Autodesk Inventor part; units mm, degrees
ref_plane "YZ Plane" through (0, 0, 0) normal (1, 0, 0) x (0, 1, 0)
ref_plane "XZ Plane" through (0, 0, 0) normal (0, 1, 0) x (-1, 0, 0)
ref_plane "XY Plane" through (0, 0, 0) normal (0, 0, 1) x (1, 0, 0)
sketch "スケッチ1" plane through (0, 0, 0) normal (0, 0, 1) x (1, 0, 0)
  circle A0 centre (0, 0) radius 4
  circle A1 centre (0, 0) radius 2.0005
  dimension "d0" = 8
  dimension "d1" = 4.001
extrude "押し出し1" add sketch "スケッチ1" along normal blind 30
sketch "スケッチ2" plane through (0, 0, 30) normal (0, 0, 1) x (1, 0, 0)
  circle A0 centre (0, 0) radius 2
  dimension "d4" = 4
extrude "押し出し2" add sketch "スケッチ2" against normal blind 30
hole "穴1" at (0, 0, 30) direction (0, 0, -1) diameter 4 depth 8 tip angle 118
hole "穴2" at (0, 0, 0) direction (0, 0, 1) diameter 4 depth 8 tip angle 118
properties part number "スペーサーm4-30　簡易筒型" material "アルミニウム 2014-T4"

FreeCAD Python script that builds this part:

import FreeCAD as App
import Part
import Sketcher
from FreeCAD import Vector

doc = App.newDocument("Part")
params = doc.addObject("Spreadsheet::Sheet", "Params")
for row, (alias, value) in enumerate([
    ("sketch1_diameter", "8 mm"),
    ("pad1_length", "30 mm"),
    ("sketch2_diameter", "4 mm"),
    ("pad2_length", "30 mm"),
    ("sketch3_diameter", "4 mm"),
    ("hole_diameter", "4 mm"),
    ("hole_depth", "8 mm"),
    ("sketch4_diameter", "4 mm"),
    ("hole2_diameter", "4 mm"),
    ("hole2_depth", "8 mm"),
], start=1):
    params.set(f"A{row}", alias)
    params.set(f"B{row}", "=" + value)
    params.setAlias(f"B{row}", alias)

body = doc.addObject("PartDesign::Body", "Body")
body.AllowCompound = True

# Sketch on XY plane
sketch1 = doc.addObject("Sketcher::SketchObject", "Sketch")
body.addObject(sketch1)
sketch1.AttachmentSupport = (doc.XY_Plane, [""])
sketch1.MapMode = "FlatFace"
sketch1.addGeometry([
    Part.Circle(Vector(0, 0, 0), Vector(0, 0, 1), 4),
    Part.Circle(Vector(0, 0, 0), Vector(0, 0, 1), 2.0005),
], False)
sketch1.addConstraint([
    Sketcher.Constraint("Coincident", 0, 3, -1, 1),
    Sketcher.Constraint("Coincident", 1, 3, -1, 1),
    Sketcher.Constraint("Diameter", 0, 8.0),
    Sketcher.Constraint("Diameter", 1, 4.001),
])
sketch1.setExpression("Constraints[2]", "Params.sketch1_diameter")
pad1 = doc.addObject("PartDesign::Pad", "Pad")
body.addObject(pad1)
pad1.Profile = sketch1
pad1.setExpression("Length", "Params.pad1_length")

# Sketch on XY plane
sketch2 = doc.addObject("Sketcher::SketchObject", "Sketch001")
body.addObject(sketch2)
sketch2.AttachmentSupport = (doc.XY_Plane, [""])
sketch2.MapMode = "FlatFace"
sketch2.AttachmentOffset = App.Placement(Vector(0, 0, 30), App.Rotation())
sketch2.addGeometry(Part.Circle(Vector(0, 0, 0), Vector(0, 0, 1), 2), False)
sketch2.addConstraint([
    Sketcher.Constraint("Coincident", 0, 3, -1, 1),
    Sketcher.Constraint("Diameter", 0, 4.0),
])
sketch2.setExpression("Constraints[1]", "Params.sketch2_diameter")
pad2 = doc.addObject("PartDesign::Pad", "Pad001")
body.addObject(pad2)
pad2.Profile = sketch2
pad2.setExpression("Length", "Params.pad2_length")
pad2.Reversed = True

# Sketch on XY plane
sketch3 = doc.addObject("Sketcher::SketchObject", "Sketch002")
body.addObject(sketch3)
sketch3.AttachmentSupport = (doc.XY_Plane, [""])
sketch3.MapMode = "FlatFace"
sketch3.AttachmentOffset = App.Placement(Vector(0, 0, 30), App.Rotation())
sketch3.addGeometry(Part.Circle(Vector(0, 0, 0), Vector(0, 0, 1), 2), False)
sketch3.addConstraint([
    Sketcher.Constraint("Coincident", 0, 3, -1, 1),
    Sketcher.Constraint("Diameter", 0, 4.0),
])
sketch3.setExpression("Constraints[1]", "Params.sketch3_diameter")
doc.recompute()
hole = doc.addObject("PartDesign::Hole", "Hole")
body.addObject(hole)
hole.Profile = sketch3
hole.ThreadType = "None"
hole.setExpression("Diameter", "Params.hole_diameter")
hole.DepthType = "Dimension"
hole.setExpression("Depth", "Params.hole_depth")
hole.DrillPoint = "Angled"
hole.DrillPointAngle = 118

# Sketch on XY plane
sketch4 = doc.addObject("Sketcher::SketchObject", "Sketch003")
body.addObject(sketch4)
sketch4.AttachmentSupport = (doc.XY_Plane, [""])
sketch4.MapMode = "FlatFace"
sketch4.addGeometry(Part.Circle(Vector(0, 0, 0), Vector(0, 0, 1), 2), False)
sketch4.addConstraint([
    Sketcher.Constraint("Coincident", 0, 3, -1, 1),
    Sketcher.Constraint("Diameter", 0, 4.0),
])
sketch4.setExpression("Constraints[1]", "Params.sketch4_diameter")
doc.recompute()
hole2 = doc.addObject("PartDesign::Hole", "Hole001")
body.addObject(hole2)
hole2.Profile = sketch4
hole2.ThreadType = "None"
hole2.setExpression("Diameter", "Params.hole2_diameter")
hole2.DepthType = "Dimension"
hole2.setExpression("Depth", "Params.hole2_depth")
hole2.DrillPoint = "Angled"
hole2.DrillPointAngle = 118
hole2.Reversed = True

doc.recompute()
